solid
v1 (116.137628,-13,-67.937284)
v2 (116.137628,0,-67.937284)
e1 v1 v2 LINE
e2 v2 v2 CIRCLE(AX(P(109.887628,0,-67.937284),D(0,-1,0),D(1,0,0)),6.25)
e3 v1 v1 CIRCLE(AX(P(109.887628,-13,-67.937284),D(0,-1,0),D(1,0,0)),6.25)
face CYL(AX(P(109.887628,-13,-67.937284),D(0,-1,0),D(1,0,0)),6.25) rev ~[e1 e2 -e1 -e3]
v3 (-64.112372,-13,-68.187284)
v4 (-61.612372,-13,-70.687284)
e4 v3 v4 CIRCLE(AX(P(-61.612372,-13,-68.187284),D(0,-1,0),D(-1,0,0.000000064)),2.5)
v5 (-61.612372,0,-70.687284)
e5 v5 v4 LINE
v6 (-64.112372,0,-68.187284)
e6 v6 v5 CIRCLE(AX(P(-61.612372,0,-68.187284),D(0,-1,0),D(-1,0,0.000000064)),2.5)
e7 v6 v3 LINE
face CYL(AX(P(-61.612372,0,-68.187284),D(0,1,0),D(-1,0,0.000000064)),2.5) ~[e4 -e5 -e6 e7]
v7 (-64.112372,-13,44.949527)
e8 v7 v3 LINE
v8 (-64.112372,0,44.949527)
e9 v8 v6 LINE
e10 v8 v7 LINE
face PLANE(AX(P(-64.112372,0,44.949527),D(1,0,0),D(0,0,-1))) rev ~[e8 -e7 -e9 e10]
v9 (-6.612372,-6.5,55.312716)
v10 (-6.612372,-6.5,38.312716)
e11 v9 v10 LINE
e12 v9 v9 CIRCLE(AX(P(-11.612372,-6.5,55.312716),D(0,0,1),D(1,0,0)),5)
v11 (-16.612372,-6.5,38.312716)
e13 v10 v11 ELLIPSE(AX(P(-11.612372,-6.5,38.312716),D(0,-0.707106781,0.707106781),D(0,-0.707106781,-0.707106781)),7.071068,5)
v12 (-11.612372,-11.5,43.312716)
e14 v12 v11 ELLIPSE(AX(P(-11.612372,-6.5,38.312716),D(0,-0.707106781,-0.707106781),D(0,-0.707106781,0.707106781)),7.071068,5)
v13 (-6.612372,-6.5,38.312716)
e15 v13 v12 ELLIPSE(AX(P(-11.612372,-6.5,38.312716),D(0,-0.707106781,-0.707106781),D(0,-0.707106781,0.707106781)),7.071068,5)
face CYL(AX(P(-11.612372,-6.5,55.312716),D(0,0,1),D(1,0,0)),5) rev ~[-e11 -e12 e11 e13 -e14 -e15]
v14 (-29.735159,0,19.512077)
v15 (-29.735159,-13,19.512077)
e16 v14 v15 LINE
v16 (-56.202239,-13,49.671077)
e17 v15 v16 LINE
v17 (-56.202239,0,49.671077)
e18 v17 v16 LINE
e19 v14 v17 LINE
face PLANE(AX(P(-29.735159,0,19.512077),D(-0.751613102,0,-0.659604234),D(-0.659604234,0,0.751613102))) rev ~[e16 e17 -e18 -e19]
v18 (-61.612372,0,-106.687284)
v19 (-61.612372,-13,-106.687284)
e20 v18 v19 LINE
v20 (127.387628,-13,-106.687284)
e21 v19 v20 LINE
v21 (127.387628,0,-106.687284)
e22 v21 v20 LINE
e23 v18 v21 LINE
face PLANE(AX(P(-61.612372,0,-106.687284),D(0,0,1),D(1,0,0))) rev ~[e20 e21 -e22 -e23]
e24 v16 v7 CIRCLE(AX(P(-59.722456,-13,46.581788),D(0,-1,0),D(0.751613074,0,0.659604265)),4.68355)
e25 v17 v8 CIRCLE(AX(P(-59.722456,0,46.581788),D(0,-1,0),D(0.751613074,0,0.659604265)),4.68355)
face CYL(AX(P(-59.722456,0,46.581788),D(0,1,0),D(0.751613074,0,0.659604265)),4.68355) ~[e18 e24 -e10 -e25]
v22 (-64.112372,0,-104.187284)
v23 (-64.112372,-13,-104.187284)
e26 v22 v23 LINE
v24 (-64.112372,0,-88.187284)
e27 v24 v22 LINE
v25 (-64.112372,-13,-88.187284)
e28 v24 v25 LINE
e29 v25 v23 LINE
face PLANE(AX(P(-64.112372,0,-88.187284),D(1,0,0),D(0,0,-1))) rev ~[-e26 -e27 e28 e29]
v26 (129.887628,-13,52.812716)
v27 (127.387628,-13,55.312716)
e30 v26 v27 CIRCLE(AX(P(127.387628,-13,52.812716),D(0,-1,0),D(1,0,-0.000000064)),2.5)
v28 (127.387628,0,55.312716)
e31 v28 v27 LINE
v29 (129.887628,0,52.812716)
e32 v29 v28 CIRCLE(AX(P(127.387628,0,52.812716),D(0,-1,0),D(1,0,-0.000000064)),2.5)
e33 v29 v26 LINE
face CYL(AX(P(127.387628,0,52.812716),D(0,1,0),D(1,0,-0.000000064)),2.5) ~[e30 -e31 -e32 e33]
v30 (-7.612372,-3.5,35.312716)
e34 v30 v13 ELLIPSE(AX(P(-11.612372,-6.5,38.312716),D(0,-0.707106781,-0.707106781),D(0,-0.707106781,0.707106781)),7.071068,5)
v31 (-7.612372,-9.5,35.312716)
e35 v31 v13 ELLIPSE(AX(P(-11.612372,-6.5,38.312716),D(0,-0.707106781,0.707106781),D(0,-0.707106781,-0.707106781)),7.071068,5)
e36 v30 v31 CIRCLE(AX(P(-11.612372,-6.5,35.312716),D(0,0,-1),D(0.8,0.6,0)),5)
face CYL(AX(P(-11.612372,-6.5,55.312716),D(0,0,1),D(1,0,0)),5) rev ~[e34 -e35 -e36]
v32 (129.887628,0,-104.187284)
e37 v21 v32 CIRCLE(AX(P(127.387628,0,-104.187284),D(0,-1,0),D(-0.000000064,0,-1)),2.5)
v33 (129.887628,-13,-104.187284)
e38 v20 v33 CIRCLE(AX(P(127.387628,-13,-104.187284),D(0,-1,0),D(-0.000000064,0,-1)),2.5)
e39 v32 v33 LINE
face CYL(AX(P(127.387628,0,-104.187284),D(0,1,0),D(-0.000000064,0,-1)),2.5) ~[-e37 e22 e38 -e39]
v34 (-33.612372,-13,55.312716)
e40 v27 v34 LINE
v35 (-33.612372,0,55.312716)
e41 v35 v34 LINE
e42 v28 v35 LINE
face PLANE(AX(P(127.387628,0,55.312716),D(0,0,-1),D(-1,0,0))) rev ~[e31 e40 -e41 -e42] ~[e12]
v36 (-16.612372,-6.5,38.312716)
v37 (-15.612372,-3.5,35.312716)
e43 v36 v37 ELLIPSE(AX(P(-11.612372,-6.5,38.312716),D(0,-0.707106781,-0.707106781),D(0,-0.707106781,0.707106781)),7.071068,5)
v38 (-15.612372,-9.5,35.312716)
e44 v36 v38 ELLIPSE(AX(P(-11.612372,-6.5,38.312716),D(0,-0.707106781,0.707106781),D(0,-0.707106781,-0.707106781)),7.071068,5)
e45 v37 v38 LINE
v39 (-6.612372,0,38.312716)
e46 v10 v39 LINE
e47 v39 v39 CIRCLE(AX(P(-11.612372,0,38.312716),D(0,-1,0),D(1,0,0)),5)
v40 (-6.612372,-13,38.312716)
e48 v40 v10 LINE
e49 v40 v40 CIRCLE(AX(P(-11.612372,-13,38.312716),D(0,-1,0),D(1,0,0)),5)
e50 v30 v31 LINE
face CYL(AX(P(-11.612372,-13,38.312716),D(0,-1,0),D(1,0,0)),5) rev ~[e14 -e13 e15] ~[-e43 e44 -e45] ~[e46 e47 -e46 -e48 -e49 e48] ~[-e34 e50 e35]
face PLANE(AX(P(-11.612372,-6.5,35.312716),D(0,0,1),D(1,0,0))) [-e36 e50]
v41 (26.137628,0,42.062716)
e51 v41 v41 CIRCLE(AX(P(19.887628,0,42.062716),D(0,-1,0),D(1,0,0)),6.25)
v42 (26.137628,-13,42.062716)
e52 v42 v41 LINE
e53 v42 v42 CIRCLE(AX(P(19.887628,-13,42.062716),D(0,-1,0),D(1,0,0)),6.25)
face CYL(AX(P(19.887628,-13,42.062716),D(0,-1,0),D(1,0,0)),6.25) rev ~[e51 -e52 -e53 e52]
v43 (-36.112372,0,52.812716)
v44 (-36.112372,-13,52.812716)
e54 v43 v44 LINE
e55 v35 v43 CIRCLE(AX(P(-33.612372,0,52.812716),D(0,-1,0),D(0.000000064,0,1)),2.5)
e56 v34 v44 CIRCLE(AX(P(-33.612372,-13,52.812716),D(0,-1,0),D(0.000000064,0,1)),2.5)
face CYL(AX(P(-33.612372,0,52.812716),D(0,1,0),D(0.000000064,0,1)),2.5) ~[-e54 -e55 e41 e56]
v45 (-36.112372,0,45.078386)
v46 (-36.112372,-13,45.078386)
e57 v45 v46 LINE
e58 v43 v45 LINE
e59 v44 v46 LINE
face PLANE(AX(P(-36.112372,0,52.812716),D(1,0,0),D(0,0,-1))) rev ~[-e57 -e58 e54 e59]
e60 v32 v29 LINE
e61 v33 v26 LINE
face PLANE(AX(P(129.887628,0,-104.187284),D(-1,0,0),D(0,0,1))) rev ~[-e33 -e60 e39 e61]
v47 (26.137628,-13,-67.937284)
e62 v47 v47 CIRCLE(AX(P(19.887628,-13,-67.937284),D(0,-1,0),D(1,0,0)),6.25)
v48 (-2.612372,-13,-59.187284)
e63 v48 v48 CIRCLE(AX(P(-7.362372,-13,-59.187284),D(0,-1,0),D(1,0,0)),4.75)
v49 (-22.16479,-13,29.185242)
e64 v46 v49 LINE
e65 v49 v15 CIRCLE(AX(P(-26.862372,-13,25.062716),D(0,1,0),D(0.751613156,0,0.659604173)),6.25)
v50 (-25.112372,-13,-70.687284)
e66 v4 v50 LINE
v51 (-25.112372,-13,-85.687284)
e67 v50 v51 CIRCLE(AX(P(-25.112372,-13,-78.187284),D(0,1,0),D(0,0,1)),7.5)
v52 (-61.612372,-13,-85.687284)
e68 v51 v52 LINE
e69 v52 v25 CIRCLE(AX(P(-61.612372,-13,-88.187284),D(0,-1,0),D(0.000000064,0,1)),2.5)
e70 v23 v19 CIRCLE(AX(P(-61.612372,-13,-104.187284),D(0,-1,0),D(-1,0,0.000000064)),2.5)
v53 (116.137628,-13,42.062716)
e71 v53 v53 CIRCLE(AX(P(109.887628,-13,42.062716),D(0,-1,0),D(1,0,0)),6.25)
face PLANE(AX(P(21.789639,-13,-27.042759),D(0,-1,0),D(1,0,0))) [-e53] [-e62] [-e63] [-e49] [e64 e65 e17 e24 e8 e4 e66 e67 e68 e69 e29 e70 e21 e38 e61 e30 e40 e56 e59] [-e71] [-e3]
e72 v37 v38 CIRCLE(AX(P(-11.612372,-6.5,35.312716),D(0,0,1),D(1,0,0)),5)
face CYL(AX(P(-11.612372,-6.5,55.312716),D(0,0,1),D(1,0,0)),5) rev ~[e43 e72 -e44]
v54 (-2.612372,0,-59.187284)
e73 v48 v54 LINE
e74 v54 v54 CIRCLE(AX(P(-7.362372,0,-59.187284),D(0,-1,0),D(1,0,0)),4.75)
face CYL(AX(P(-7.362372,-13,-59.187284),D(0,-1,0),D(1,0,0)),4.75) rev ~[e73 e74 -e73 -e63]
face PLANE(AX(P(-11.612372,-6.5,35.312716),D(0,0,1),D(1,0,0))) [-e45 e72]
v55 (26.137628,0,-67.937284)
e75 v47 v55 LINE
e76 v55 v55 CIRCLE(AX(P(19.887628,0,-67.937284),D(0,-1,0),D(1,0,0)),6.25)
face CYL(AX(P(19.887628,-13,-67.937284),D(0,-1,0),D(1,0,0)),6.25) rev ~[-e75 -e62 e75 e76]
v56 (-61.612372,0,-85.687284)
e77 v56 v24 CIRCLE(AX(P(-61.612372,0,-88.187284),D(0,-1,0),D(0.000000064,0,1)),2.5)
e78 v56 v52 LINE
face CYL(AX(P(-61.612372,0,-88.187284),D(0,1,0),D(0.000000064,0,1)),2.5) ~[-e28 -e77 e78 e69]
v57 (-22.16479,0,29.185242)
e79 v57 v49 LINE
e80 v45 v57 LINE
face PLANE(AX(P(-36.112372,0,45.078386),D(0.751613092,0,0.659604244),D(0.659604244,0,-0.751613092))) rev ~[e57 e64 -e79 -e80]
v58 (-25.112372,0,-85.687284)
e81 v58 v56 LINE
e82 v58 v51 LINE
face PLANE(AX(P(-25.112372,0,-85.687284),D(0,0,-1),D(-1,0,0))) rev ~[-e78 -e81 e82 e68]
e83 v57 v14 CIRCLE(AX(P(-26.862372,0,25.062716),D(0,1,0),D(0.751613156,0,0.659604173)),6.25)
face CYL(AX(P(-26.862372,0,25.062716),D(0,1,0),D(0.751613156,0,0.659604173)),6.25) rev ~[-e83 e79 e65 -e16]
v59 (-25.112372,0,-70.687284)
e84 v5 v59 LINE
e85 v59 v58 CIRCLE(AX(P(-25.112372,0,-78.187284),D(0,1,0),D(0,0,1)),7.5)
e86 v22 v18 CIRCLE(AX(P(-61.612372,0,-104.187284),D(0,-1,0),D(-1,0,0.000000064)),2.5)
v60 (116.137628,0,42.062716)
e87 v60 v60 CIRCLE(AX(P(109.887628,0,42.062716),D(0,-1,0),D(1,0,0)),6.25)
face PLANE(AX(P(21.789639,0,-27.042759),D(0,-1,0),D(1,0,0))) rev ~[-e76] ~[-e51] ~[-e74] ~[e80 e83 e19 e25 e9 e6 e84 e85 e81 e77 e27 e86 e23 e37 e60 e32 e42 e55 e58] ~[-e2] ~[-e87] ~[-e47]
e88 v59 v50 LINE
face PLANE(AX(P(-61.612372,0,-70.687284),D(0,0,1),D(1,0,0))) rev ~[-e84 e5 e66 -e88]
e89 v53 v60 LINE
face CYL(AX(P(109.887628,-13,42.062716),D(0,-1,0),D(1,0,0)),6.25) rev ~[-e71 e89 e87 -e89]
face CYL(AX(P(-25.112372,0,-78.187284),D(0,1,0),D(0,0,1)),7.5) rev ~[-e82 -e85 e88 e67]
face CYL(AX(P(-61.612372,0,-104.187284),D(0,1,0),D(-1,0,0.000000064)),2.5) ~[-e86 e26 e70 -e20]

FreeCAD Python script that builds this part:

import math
import FreeCAD as App
import Part
import Sketcher

V = App.Vector

doc = App.newDocument("Part")
body = doc.addObject("PartDesign::Body", "Body")

# Sketch on XZ plane
sketch1 = body.newObject("Sketcher::SketchObject", "Sketch")
sketch1.AttachmentSupport = (doc.getObject("XZ_Plane"), [""])
sketch1.MapMode = "FlatFace"
sketch1.addGeometry(Part.LineSegment(V(-64.1, -88.2, 0), V(-64.1, -104.2, 0)), False)
sketch1.addGeometry(Part.ArcOfCircle(Part.Circle(V(-61.6, -104.2, 0), V(0, 0, 1), 2.5), math.radians(180), math.radians(270)), False)
sketch1.addGeometry(Part.LineSegment(V(-61.6, -106.7, 0), V(127.4, -106.7, 0)), False)
sketch1.addGeometry(Part.ArcOfCircle(Part.Circle(V(127.4, -104.2, 0), V(0, 0, 1), 2.5), math.radians(-90), math.radians(0)), False)
sketch1.addGeometry(Part.LineSegment(V(129.9, -104.2, 0), V(129.9, 52.8, 0)), False)
sketch1.addGeometry(Part.ArcOfCircle(Part.Circle(V(127.4, 52.8, 0), V(0, 0, 1), 2.5), math.radians(0), math.radians(90)), False)
sketch1.addGeometry(Part.LineSegment(V(127.4, 55.3, 0), V(-33.6, 55.3, 0)), False)
sketch1.addGeometry(Part.ArcOfCircle(Part.Circle(V(-33.6, 52.8, 0), V(0, 0, 1), 2.5), math.radians(90), math.radians(180)), False)
sketch1.addGeometry(Part.LineSegment(V(-36.1, 52.8, 0), V(-36.1, 45.1, 0)), False)
sketch1.addGeometry(Part.LineSegment(V(-36.1, 45.1, 0), V(-22.2, 29.2, 0)), False)
sketch1.addGeometry(Part.ArcOfCircle(Part.Circle(V(-26.9, 25.1, 0), V(0, 0, 1), 6.2), math.radians(-117), math.radians(41)), False)
sketch1.addGeometry(Part.LineSegment(V(-29.7, 19.5, 0), V(-56.2, 49.7, 0)), False)
sketch1.addGeometry(Part.ArcOfCircle(Part.Circle(V(-59.7, 46.6, 0), V(0, 0, 1), 4.7), math.radians(41), math.radians(200)), False)
sketch1.addGeometry(Part.LineSegment(V(-64.1, 44.9, 0), V(-64.1, -68.2, 0)), False)
sketch1.addGeometry(Part.ArcOfCircle(Part.Circle(V(-61.6, -68.2, 0), V(0, 0, 1), 2.5), math.radians(180), math.radians(270)), False)
sketch1.addGeometry(Part.LineSegment(V(-61.6, -70.7, 0), V(-25.1, -70.7, 0)), False)
sketch1.addGeometry(Part.ArcOfCircle(Part.Circle(V(-25.1, -78.2, 0), V(0, 0, 1), 7.5), math.radians(-90), math.radians(90)), False)
sketch1.addGeometry(Part.LineSegment(V(-25.1, -85.7, 0), V(-61.6, -85.7, 0)), False)
sketch1.addGeometry(Part.ArcOfCircle(Part.Circle(V(-61.6, -88.2, 0), V(0, 0, 1), 2.5), math.radians(90), math.radians(180)), False)
sketch1.addConstraint(Sketcher.Constraint("Tangent", 0, 2, 1, 1))
sketch1.addConstraint(Sketcher.Constraint("Tangent", 1, 2, 2, 1))
sketch1.addConstraint(Sketcher.Constraint("Tangent", 2, 2, 3, 1))
sketch1.addConstraint(Sketcher.Constraint("Tangent", 3, 2, 4, 1))
sketch1.addConstraint(Sketcher.Constraint("Tangent", 4, 2, 5, 1))
sketch1.addConstraint(Sketcher.Constraint("Tangent", 5, 2, 6, 1))
sketch1.addConstraint(Sketcher.Constraint("Tangent", 6, 2, 7, 1))
sketch1.addConstraint(Sketcher.Constraint("Tangent", 7, 2, 8, 1))
sketch1.addConstraint(Sketcher.Constraint("Coincident", 8, 2, 9, 1))
sketch1.addConstraint(Sketcher.Constraint("Tangent", 9, 2, 10, 2))
sketch1.addConstraint(Sketcher.Constraint("Coincident", 10, 1, 11, 1))
sketch1.addConstraint(Sketcher.Constraint("Tangent", 11, 2, 12, 1))
sketch1.addConstraint(Sketcher.Constraint("Coincident", 12, 2, 13, 1))
sketch1.addConstraint(Sketcher.Constraint("Tangent", 13, 2, 14, 1))
sketch1.addConstraint(Sketcher.Constraint("Tangent", 14, 2, 15, 1))
sketch1.addConstraint(Sketcher.Constraint("Tangent", 15, 2, 16, 2))
sketch1.addConstraint(Sketcher.Constraint("Tangent", 16, 1, 17, 1))
sketch1.addConstraint(Sketcher.Constraint("Tangent", 17, 2, 18, 1))
sketch1.addConstraint(Sketcher.Constraint("Tangent", 18, 2, 0, 1))
sketch1.addConstraint(Sketcher.Constraint("Vertical", 0))
sketch1.addConstraint(Sketcher.Constraint("Horizontal", 2))
sketch1.addConstraint(Sketcher.Constraint("Vertical", 4))
sketch1.addConstraint(Sketcher.Constraint("Horizontal", 6))
sketch1.addConstraint(Sketcher.Constraint("Vertical", 8))
sketch1.addConstraint(Sketcher.Constraint("Vertical", 13))
sketch1.addConstraint(Sketcher.Constraint("Horizontal", 15))
sketch1.addConstraint(Sketcher.Constraint("Horizontal", 17))
sketch1.addConstraint(Sketcher.Constraint("Equal", 1, 3))
sketch1.addConstraint(Sketcher.Constraint("Equal", 3, 5))
sketch1.addConstraint(Sketcher.Constraint("Equal", 5, 7))
sketch1.addConstraint(Sketcher.Constraint("Equal", 7, 14))
sketch1.addConstraint(Sketcher.Constraint("Equal", 14, 18))
sketch1.addConstraint(Sketcher.Constraint("Parallel", 9, 11))
sketch1.addConstraint(Sketcher.Constraint("Vertical", 1, 3, 14, 3))
sketch1.addConstraint(Sketcher.Constraint("Radius", 1, 2.5))
sketch1.addConstraint(Sketcher.Constraint("Radius", 16, 7.5))
sketch1.addConstraint(Sketcher.Constraint("DistanceX", 2, 1, 2, 2, 189.0))
sketch1.addConstraint(Sketcher.Constraint("DistanceX", 6, 2, 6, 1, 161.0))
sketch1.addConstraint(Sketcher.Constraint("DistanceY", 0, 2, 0, 1, 16.0))
sketch1.addConstraint(Sketcher.Constraint("DistanceY", 4, 1, 4, 2, 157.0))
sketch1.addConstraint(Sketcher.Constraint("Radius", 10, 6.25))
sketch1.addConstraint(Sketcher.Constraint("DistanceX", 15, 1, 15, 2, 36.5))
sketch1.addConstraint(Sketcher.Constraint("Radius", 12, 4.68355))
sketch1.addConstraint(Sketcher.Constraint("DistanceX", 7, 3, 10, 3, 6.75))
sketch1.addConstraint(Sketcher.Constraint("DistanceY", 10, 3, 7, 3, 27.75))
sketch1.addConstraint(Sketcher.Constraint("DistanceY", 8, 2, 8, 1, 7.73433))
sketch1.addConstraint(Sketcher.Constraint("DistanceY", 13, 2, 13, 1, 113.136811))
sketch1.addConstraint(Sketcher.Constraint("DistanceY", 8, 2, 12, 3, 1.503402))
sketch1.addConstraint(Sketcher.Constraint("DistanceX", -1, 1, 3, 3, 127.387628))
sketch1.addConstraint(Sketcher.Constraint("DistanceY", -1, 1, 9, 2, 29.185242))
pad1 = body.newObject("PartDesign::Pad", "Pad")
pad1.Profile = sketch1
pad1.Length = 13

# Sketch on XZ plane
sketch2 = body.newObject("Sketcher::SketchObject", "Sketch001")
sketch2.AttachmentSupport = (doc.getObject("XZ_Plane"), [""])
sketch2.MapMode = "FlatFace"
sketch2.AttachmentOffset = App.Placement(V(0, 0, 13), App.Rotation())
sketch2.addGeometry(Part.Circle(V(-11.6, 38.3, 0), V(0, 0, 1), 5), False)
sketch2.addGeometry(Part.Circle(V(19.9, 42.1, 0), V(0, 0, 1), 6.2), False)
sketch2.addGeometry(Part.Circle(V(109.9, 42.1, 0), V(0, 0, 1), 6.2), False)
sketch2.addGeometry(Part.Circle(V(109.9, -67.9, 0), V(0, 0, 1), 6.2), False)
sketch2.addGeometry(Part.Circle(V(19.9, -67.9, 0), V(0, 0, 1), 6.2), False)
sketch2.addGeometry(Part.Circle(V(-7.4, -59.2, 0), V(0, 0, 1), 4.8), False)
sketch2.addConstraint(Sketcher.Constraint("Equal", 1, 2))
sketch2.addConstraint(Sketcher.Constraint("Equal", 2, 3))
sketch2.addConstraint(Sketcher.Constraint("Equal", 3, 4))
sketch2.addConstraint(Sketcher.Constraint("Horizontal", 1, 3, 2, 3))
sketch2.addConstraint(Sketcher.Constraint("Horizontal", 3, 3, 4, 3))
sketch2.addConstraint(Sketcher.Constraint("Vertical", 2, 3, 3, 3))
sketch2.addConstraint(Sketcher.Constraint("Vertical", 1, 3, 4, 3))
sketch2.addConstraint(Sketcher.Constraint("Diameter", 0, 10.0))
sketch2.addConstraint(Sketcher.Constraint("Diameter", 1, 12.5))
sketch2.addConstraint(Sketcher.Constraint("Diameter", 5, 9.5))
sketch2.addConstraint(Sketcher.Constraint("DistanceX", 1, 3, 2, 3, 90.0))
sketch2.addConstraint(Sketcher.Constraint("DistanceY", 3, 3, 2, 3, 110.0))
sketch2.addConstraint(Sketcher.Constraint("DistanceX", 0, 3, 1, 3, 31.5))
sketch2.addConstraint(Sketcher.Constraint("DistanceY", 5, 3, 0, 3, 97.5))
sketch2.addConstraint(Sketcher.Constraint("DistanceY", 0, 3, 1, 3, 3.75))
sketch2.addConstraint(Sketcher.Constraint("DistanceX", 5, 3, 4, 3, 27.25))
sketch2.addConstraint(Sketcher.Constraint("DistanceX", -1, 1, 2, 3, 109.887628))
sketch2.addConstraint(Sketcher.Constraint("DistanceY", -1, 1, 0, 3, 38.312716))
pocket1 = body.newObject("PartDesign::Pocket", "Pocket")
pocket1.Profile = sketch2
pocket1.Length = 13

# Sketch on XY plane
sketch3 = body.newObject("Sketcher::SketchObject", "Sketch002")
sketch3.AttachmentSupport = (doc.getObject("XY_Plane"), [""])
sketch3.MapMode = "FlatFace"
sketch3.AttachmentOffset = App.Placement(V(0, 0, 55.312716), App.Rotation())
sketch3.addGeometry(Part.Circle(V(-12, -6, 0), V(0, 0, 1), 5), False)
sketch3.addConstraint(Sketcher.Constraint("Diameter", 0, 10.0))
sketch3.addConstraint(Sketcher.Constraint("DistanceY", 0, 3, -1, 1, 6.5))
sketch3.addConstraint(Sketcher.Constraint("DistanceX", 0, 3, -1, 1, 11.612372))
pocket2 = body.newObject("PartDesign::Pocket", "Pocket001")
pocket2.Profile = sketch3
pocket2.Length = 20

doc.recompute()
